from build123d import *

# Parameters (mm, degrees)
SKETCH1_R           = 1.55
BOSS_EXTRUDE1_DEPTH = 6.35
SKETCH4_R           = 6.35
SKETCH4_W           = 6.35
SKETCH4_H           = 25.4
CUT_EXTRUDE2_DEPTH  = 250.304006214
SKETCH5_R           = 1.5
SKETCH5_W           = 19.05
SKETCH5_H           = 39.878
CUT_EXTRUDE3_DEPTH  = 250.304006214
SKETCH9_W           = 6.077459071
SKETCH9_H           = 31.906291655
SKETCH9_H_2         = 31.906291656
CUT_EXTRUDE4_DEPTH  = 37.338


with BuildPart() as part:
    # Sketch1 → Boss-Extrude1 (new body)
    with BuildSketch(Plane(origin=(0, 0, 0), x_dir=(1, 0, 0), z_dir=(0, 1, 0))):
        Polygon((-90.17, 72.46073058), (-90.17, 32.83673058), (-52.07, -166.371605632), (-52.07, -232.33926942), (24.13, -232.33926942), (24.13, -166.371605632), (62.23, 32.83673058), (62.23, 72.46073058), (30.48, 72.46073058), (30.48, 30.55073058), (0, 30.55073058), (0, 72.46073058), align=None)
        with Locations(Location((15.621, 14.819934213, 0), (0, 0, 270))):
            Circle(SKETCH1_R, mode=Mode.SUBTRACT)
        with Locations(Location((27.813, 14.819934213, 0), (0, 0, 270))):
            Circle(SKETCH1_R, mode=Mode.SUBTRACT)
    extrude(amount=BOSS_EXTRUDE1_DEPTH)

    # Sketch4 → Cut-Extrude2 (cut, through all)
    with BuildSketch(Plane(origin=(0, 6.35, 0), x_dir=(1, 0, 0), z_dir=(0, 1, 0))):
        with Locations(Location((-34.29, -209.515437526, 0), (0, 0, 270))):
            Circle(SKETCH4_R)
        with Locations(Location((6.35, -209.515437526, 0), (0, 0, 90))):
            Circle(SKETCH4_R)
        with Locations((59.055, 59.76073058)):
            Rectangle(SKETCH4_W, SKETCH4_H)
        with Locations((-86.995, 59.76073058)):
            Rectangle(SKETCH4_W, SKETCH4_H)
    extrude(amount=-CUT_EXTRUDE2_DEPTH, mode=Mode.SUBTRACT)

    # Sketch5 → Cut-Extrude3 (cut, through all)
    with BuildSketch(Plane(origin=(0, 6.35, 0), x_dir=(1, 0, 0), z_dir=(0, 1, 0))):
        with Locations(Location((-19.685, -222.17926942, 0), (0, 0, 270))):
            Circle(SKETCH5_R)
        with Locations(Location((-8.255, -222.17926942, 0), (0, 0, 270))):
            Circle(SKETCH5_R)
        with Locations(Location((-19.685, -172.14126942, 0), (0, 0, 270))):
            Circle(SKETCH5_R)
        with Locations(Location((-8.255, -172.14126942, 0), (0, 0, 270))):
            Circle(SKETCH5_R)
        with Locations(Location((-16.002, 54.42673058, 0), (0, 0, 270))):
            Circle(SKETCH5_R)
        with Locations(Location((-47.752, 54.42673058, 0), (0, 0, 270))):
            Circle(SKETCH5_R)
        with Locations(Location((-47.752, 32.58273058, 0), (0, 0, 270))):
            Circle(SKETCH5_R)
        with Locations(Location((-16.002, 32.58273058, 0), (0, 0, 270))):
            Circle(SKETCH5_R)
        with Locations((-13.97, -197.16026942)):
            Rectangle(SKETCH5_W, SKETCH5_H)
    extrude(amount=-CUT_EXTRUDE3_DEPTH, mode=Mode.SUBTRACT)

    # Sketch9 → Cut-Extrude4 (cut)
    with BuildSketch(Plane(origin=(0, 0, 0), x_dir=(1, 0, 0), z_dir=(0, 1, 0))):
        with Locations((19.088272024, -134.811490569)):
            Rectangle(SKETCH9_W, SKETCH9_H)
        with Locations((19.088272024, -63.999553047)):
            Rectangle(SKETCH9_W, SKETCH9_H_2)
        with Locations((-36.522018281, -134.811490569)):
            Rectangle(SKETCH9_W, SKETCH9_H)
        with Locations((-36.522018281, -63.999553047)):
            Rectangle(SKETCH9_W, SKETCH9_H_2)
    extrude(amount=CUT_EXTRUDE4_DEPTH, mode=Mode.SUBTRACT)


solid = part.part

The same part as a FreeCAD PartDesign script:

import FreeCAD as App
import Part
import Sketcher
from FreeCAD import Vector
Q = App.Units.Quantity

doc = App.newDocument("Part")
body = doc.addObject("PartDesign::Body", "Body")

# Sketch on XZ plane
sketch1 = doc.addObject("Sketcher::SketchObject", "Sketch")
body.addObject(sketch1)
sketch1.AttachmentSupport = (doc.XZ_Plane, [""])
sketch1.MapMode = "FlatFace"
sketch1.addGeometry(Part.LineSegment(Vector(-90.2, -72.5, 0), Vector(-90.2, -32.8, 0)), False)
sketch1.addGeometry(Part.LineSegment(Vector(-90.2, -32.8, 0), Vector(-52.1, 166.4, 0)), False)
sketch1.addGeometry(Part.LineSegment(Vector(-52.1, 166.4, 0), Vector(-52.1, 232.3, 0)), False)
sketch1.addGeometry(Part.LineSegment(Vector(-52.1, 232.3, 0), Vector(24.1, 232.3, 0)), False)
sketch1.addGeometry(Part.LineSegment(Vector(24.1, 232.3, 0), Vector(24.1, 166.4, 0)), False)
sketch1.addGeometry(Part.LineSegment(Vector(24.1, 166.4, 0), Vector(62.2, -32.8, 0)), False)
sketch1.addGeometry(Part.LineSegment(Vector(62.2, -32.8, 0), Vector(62.2, -72.5, 0)), False)
sketch1.addGeometry(Part.LineSegment(Vector(62.2, -72.5, 0), Vector(30.5, -72.5, 0)), False)
sketch1.addGeometry(Part.LineSegment(Vector(30.5, -72.5, 0), Vector(30.5, -30.6, 0)), False)
sketch1.addGeometry(Part.LineSegment(Vector(30.5, -30.6, 0), Vector(0, -30.6, 0)), False)
sketch1.addGeometry(Part.LineSegment(Vector(0, -30.6, 0), Vector(0, -72.5, 0)), False)
sketch1.addGeometry(Part.LineSegment(Vector(0, -72.5, 0), Vector(-90.2, -72.5, 0)), False)
sketch1.addGeometry(Part.Circle(Vector(15.6, -14.8, 0), Vector(0, 0, 1), 1.6), False)
sketch1.addGeometry(Part.Circle(Vector(27.8, -14.8, 0), Vector(0, 0, 1), 1.6), False)
sketch1.addConstraint(Sketcher.Constraint("Coincident", 0, 2, 1, 1))
sketch1.addConstraint(Sketcher.Constraint("Coincident", 1, 2, 2, 1))
sketch1.addConstraint(Sketcher.Constraint("Coincident", 2, 2, 3, 1))
sketch1.addConstraint(Sketcher.Constraint("Coincident", 3, 2, 4, 1))
sketch1.addConstraint(Sketcher.Constraint("Coincident", 4, 2, 5, 1))
sketch1.addConstraint(Sketcher.Constraint("Coincident", 5, 2, 6, 1))
sketch1.addConstraint(Sketcher.Constraint("Coincident", 6, 2, 7, 1))
sketch1.addConstraint(Sketcher.Constraint("Coincident", 7, 2, 8, 1))
sketch1.addConstraint(Sketcher.Constraint("Coincident", 8, 2, 9, 1))
sketch1.addConstraint(Sketcher.Constraint("Coincident", 9, 2, 10, 1))
sketch1.addConstraint(Sketcher.Constraint("Coincident", 10, 2, 11, 1))
sketch1.addConstraint(Sketcher.Constraint("Coincident", 11, 2, 0, 1))
sketch1.addConstraint(Sketcher.Constraint("Vertical", 0))
sketch1.addConstraint(Sketcher.Constraint("Vertical", 2))
sketch1.addConstraint(Sketcher.Constraint("Horizontal", 3))
sketch1.addConstraint(Sketcher.Constraint("Vertical", 4))
sketch1.addConstraint(Sketcher.Constraint("Vertical", 6))
sketch1.addConstraint(Sketcher.Constraint("Horizontal", 7))
sketch1.addConstraint(Sketcher.Constraint("Vertical", 8))
sketch1.addConstraint(Sketcher.Constraint("Horizontal", 9))
sketch1.addConstraint(Sketcher.Constraint("Vertical", 10))
sketch1.addConstraint(Sketcher.Constraint("Horizontal", 11))
sketch1.addConstraint(Sketcher.Constraint("Equal", 12, 13))
sketch1.addConstraint(Sketcher.Constraint("PointOnObject", 9, 2, -2))
sketch1.addConstraint(Sketcher.Constraint("Horizontal", 12, 3, 13, 3))
sketch1.addConstraint(Sketcher.Constraint("Horizontal", 1, 2, 4, 2))
sketch1.addConstraint(Sketcher.Constraint("Horizontal", 0, 2, 5, 2))
sketch1.addConstraint(Sketcher.Constraint("Horizontal", 7, 2, 10, 2))
sketch1.addConstraint(Sketcher.Constraint("Equal", 1, 5))
sketch1.addConstraint(Sketcher.Constraint("DistanceX", 3, 1, 3, 2, Q("3 in")))
sketch1.addConstraint(Sketcher.Constraint("DistanceX", 9, 2, 9, 1, Q("1.2 in")))
sketch1.addConstraint(Sketcher.Constraint("DistanceX", 0, 2, 5, 2, Q("6 in")))
sketch1.addConstraint(Sketcher.Constraint("DistanceX", 7, 2, 7, 1, Q("1.25 in")))
sketch1.addConstraint(Sketcher.Constraint("DistanceY", 0, 1, 0, 2, Q("1.56 in")))
sketch1.addConstraint(Sketcher.Constraint("DistanceY", 8, 1, 8, 2, Q("1.65 in")))
sketch1.addConstraint(Sketcher.Constraint("Diameter", 12, 3.1))
sketch1.addConstraint(Sketcher.Constraint("DistanceX", 12, 3, 13, 3, Q("0.48 in")))
sketch1.addConstraint(Sketcher.Constraint("DistanceY", 0, 2, 2, 2, Q("10.44 in")))
sketch1.addConstraint(Sketcher.Constraint("DistanceX", -1, 1, 12, 3, Q("0.615 in")))
sketch1.addConstraint(Sketcher.Constraint("Distance", 1, 202.81906))
sketch1.addConstraint(Sketcher.Constraint("DistanceY", 0, 2, -1, 1, 32.836731))
sketch1.addConstraint(Sketcher.Constraint("DistanceY", 12, 3, 1, 2, 181.19154))
pad1 = doc.addObject("PartDesign::Pad", "Pad")
body.addObject(pad1)
pad1.Profile = sketch1
pad1.Length = Q("0.25 in")
pad1.Reversed = True

# Sketch on XZ plane
sketch2 = doc.addObject("Sketcher::SketchObject", "Sketch001")
body.addObject(sketch2)
sketch2.AttachmentSupport = (doc.XZ_Plane, [""])
sketch2.MapMode = "FlatFace"
sketch2.AttachmentOffset = App.Placement(Vector(0, 0, -0.25 * 25.4), App.Rotation())
sketch2.addGeometry(Part.Circle(Vector(-34, 210, 0), Vector(0, 0, 1), 6), False)
sketch2.addGeometry(Part.Circle(Vector(6, 210, 0), Vector(0, 0, 1), 6), False)
sketch2.addGeometry(Part.LineSegment(Vector(56, -72, 0), Vector(56, -47, 0)), False)
sketch2.addGeometry(Part.LineSegment(Vector(56, -47, 0), Vector(62, -47, 0)), False)
sketch2.addGeometry(Part.LineSegment(Vector(62, -47, 0), Vector(62, -72, 0)), False)
sketch2.addGeometry(Part.LineSegment(Vector(62, -72, 0), Vector(56, -72, 0)), False)
sketch2.addGeometry(Part.LineSegment(Vector(-90, -72, 0), Vector(-90, -47, 0)), False)
sketch2.addGeometry(Part.LineSegment(Vector(-90, -47, 0), Vector(-84, -47, 0)), False)
sketch2.addGeometry(Part.LineSegment(Vector(-84, -47, 0), Vector(-84, -72, 0)), False)
sketch2.addGeometry(Part.LineSegment(Vector(-84, -72, 0), Vector(-90, -72, 0)), False)
sketch2.addConstraint(Sketcher.Constraint("Coincident", 2, 2, 3, 1))
sketch2.addConstraint(Sketcher.Constraint("Coincident", 3, 2, 4, 1))
sketch2.addConstraint(Sketcher.Constraint("Coincident", 4, 2, 5, 1))
sketch2.addConstraint(Sketcher.Constraint("Coincident", 5, 2, 2, 1))
sketch2.addConstraint(Sketcher.Constraint("Coincident", 6, 2, 7, 1))
sketch2.addConstraint(Sketcher.Constraint("Coincident", 7, 2, 8, 1))
sketch2.addConstraint(Sketcher.Constraint("Coincident", 8, 2, 9, 1))
sketch2.addConstraint(Sketcher.Constraint("Coincident", 9, 2, 6, 1))
sketch2.addConstraint(Sketcher.Constraint("Vertical", 2))
sketch2.addConstraint(Sketcher.Constraint("Horizontal", 3))
sketch2.addConstraint(Sketcher.Constraint("Vertical", 4))
sketch2.addConstraint(Sketcher.Constraint("Horizontal", 5))
sketch2.addConstraint(Sketcher.Constraint("Vertical", 6))
sketch2.addConstraint(Sketcher.Constraint("Horizontal", 7))
sketch2.addConstraint(Sketcher.Constraint("Vertical", 8))
sketch2.addConstraint(Sketcher.Constraint("Horizontal", 9))
sketch2.addConstraint(Sketcher.Constraint("Equal", 0, 1))
sketch2.addConstraint(Sketcher.Constraint("Horizontal", 0, 3, 1, 3))
sketch2.addConstraint(Sketcher.Constraint("Horizontal", 3, 2, 6, 2))
sketch2.addConstraint(Sketcher.Constraint("Horizontal", 5, 2, 8, 2))
sketch2.addConstraint(Sketcher.Constraint("Equal", 5, 7))
sketch2.addConstraint(Sketcher.Constraint("Diameter", 0, Q("0.5 in")))
sketch2.addConstraint(Sketcher.Constraint("DistanceY", 2, 1, 2, 2, Q("1 in")))
sketch2.addConstraint(Sketcher.Constraint("DistanceX", 6, 2, 3, 2, Q("6 in")))
sketch2.addConstraint(Sketcher.Constraint("DistanceX", 3, 1, 3, 2, Q("0.25 in")))
sketch2.addConstraint(Sketcher.Constraint("DistanceX", -1, 1, 2, 2, Q("2.2 in")))
sketch2.addConstraint(Sketcher.Constraint("DistanceX", 0, 3, 1, 3, Q("1.6 in")))
sketch2.addConstraint(Sketcher.Constraint("DistanceX", 1, 3, 3, 2, Q("2.2 in")))
sketch2.addConstraint(Sketcher.Constraint("DistanceY", 2, 2, -1, 1, 47.060731))
sketch2.addConstraint(Sketcher.Constraint("DistanceY", 2, 2, 1, 3, 256.576168))
pocket1 = doc.addObject("PartDesign::Pocket", "Pocket")
body.addObject(pocket1)
pocket1.Profile = sketch2
pocket1.Type = "ThroughAll"
pocket1.Reversed = True

# Sketch on XZ plane
sketch3 = doc.addObject("Sketcher::SketchObject", "Sketch002")
body.addObject(sketch3)
sketch3.AttachmentSupport = (doc.XZ_Plane, [""])
sketch3.MapMode = "FlatFace"
sketch3.AttachmentOffset = App.Placement(Vector(0, 0, -0.25 * 25.4), App.Rotation())
sketch3.addGeometry(Part.Circle(Vector(-19.7, 222.2, 0), Vector(0, 0, 1), 1.5), False)
sketch3.addGeometry(Part.Circle(Vector(-8.3, 222.2, 0), Vector(0, 0, 1), 1.5), False)
sketch3.addGeometry(Part.Circle(Vector(-19.7, 172.1, 0), Vector(0, 0, 1), 1.5), False)
sketch3.addGeometry(Part.Circle(Vector(-8.3, 172.1, 0), Vector(0, 0, 1), 1.5), False)
sketch3.addGeometry(Part.Circle(Vector(-16, -54.4, 0), Vector(0, 0, 1), 1.5), False)
sketch3.addGeometry(Part.Circle(Vector(-47.8, -54.4, 0), Vector(0, 0, 1), 1.5), False)
sketch3.addGeometry(Part.Circle(Vector(-47.8, -32.6, 0), Vector(0, 0, 1), 1.5), False)
sketch3.addGeometry(Part.Circle(Vector(-16, -32.6, 0), Vector(0, 0, 1), 1.5), False)
sketch3.addGeometry(Part.LineSegment(Vector(-23.5, 177.2, 0), Vector(-23.5, 217.1, 0)), False)
sketch3.addGeometry(Part.LineSegment(Vector(-23.5, 217.1, 0), Vector(-4.4, 217.1, 0)), False)
sketch3.addGeometry(Part.LineSegment(Vector(-4.4, 217.1, 0), Vector(-4.4, 177.2, 0)), False)
sketch3.addGeometry(Part.LineSegment(Vector(-4.4, 177.2, 0), Vector(-23.5, 177.2, 0)), False)
sketch3.addConstraint(Sketcher.Constraint("Coincident", 8, 2, 9, 1))
sketch3.addConstraint(Sketcher.Constraint("Coincident", 9, 2, 10, 1))
sketch3.addConstraint(Sketcher.Constraint("Coincident", 10, 2, 11, 1))
sketch3.addConstraint(Sketcher.Constraint("Coincident", 11, 2, 8, 1))
sketch3.addConstraint(Sketcher.Constraint("Vertical", 8))
sketch3.addConstraint(Sketcher.Constraint("Horizontal", 9))
sketch3.addConstraint(Sketcher.Constraint("Vertical", 10))
sketch3.addConstraint(Sketcher.Constraint("Horizontal", 11))
sketch3.addConstraint(Sketcher.Constraint("Equal", 0, 1))
sketch3.addConstraint(Sketcher.Constraint("Equal", 1, 2))
sketch3.addConstraint(Sketcher.Constraint("Equal", 2, 3))
sketch3.addConstraint(Sketcher.Constraint("Equal", 3, 4))
sketch3.addConstraint(Sketcher.Constraint("Equal", 4, 5))
sketch3.addConstraint(Sketcher.Constraint("Equal", 5, 6))
sketch3.addConstraint(Sketcher.Constraint("Equal", 6, 7))
sketch3.addConstraint(Sketcher.Constraint("Horizontal", 0, 3, 1, 3))
sketch3.addConstraint(Sketcher.Constraint("Horizontal", 2, 3, 3, 3))
sketch3.addConstraint(Sketcher.Constraint("Horizontal", 4, 3, 5, 3))
sketch3.addConstraint(Sketcher.Constraint("Horizontal", 6, 3, 7, 3))
sketch3.addConstraint(Sketcher.Constraint("Vertical", 0, 3, 2, 3))
sketch3.addConstraint(Sketcher.Constraint("Vertical", 1, 3, 3, 3))
sketch3.addConstraint(Sketcher.Constraint("Vertical", 5, 3, 6, 3))
sketch3.addConstraint(Sketcher.Constraint("Vertical", 4, 3, 7, 3))
sketch3.addConstraint(Sketcher.Constraint("DistanceX", 9, 1, 9, 2, Q("0.75 in")))
sketch3.addConstraint(Sketcher.Constraint("DistanceY", 8, 1, 8, 2, Q("1.57 in")))
sketch3.addConstraint(Sketcher.Constraint("DistanceY", 8, 2, 0, 3, Q("0.2 in")))
sketch3.addConstraint(Sketcher.Constraint("DistanceX", 8, 2, 1, 3, Q("0.6 in")))
sketch3.addConstraint(Sketcher.Constraint("DistanceX", 0, 3, 9, 2, Q("0.6 in")))
sketch3.addConstraint(Sketcher.Constraint("DistanceY", 3, 3, 10, 2, Q("0.2 in")))
sketch3.addConstraint(Sketcher.Constraint("Diameter", 0, 3.0))
sketch3.addConstraint(Sketcher.Constraint("DistanceX", 4, 3, -1, 1, Q("0.63 in")))
sketch3.addConstraint(Sketcher.Constraint("DistanceX", 5, 3, -1, 1, Q("1.88 in")))
sketch3.addConstraint(Sketcher.Constraint("DistanceY", 4, 3, 2, 3, Q("8.92 in")))
sketch3.addConstraint(Sketcher.Constraint("DistanceY", 5, 3, 6, 3, Q("0.86 in")))
sketch3.addConstraint(Sketcher.Constraint("DistanceX", 0, 3, -1, 1, Q("0.775 in")))
sketch3.addConstraint(Sketcher.Constraint("DistanceY", -1, 1, 0, 3, 222.179269))
pocket2 = doc.addObject("PartDesign::Pocket", "Pocket001")
body.addObject(pocket2)
pocket2.Profile = sketch3
pocket2.Type = "ThroughAll"
pocket2.Reversed = True

# Sketch on XZ plane
sketch4 = doc.addObject("Sketcher::SketchObject", "Sketch003")
body.addObject(sketch4)
sketch4.AttachmentSupport = (doc.XZ_Plane, [""])
sketch4.MapMode = "FlatFace"
sketch4.addGeometry(Part.LineSegment(Vector(16, 119, 0), Vector(16, 151, 0)), False)
sketch4.addGeometry(Part.LineSegment(Vector(16, 151, 0), Vector(22, 151, 0)), False)
sketch4.addGeometry(Part.LineSegment(Vector(22, 151, 0), Vector(22, 119, 0)), False)
sketch4.addGeometry(Part.LineSegment(Vector(22, 119, 0), Vector(16, 119, 0)), False)
sketch4.addGeometry(Part.LineSegment(Vector(16, 48, 0), Vector(16, 80, 0)), False)
sketch4.addGeometry(Part.LineSegment(Vector(16, 80, 0), Vector(22, 80, 0)), False)
sketch4.addGeometry(Part.LineSegment(Vector(22, 80, 0), Vector(22, 48, 0)), False)
sketch4.addGeometry(Part.LineSegment(Vector(22, 48, 0), Vector(16, 48, 0)), False)
sketch4.addGeometry(Part.LineSegment(Vector(-40, 119, 0), Vector(-40, 151, 0)), False)
sketch4.addGeometry(Part.LineSegment(Vector(-40, 151, 0), Vector(-33, 151, 0)), False)
sketch4.addGeometry(Part.LineSegment(Vector(-33, 151, 0), Vector(-33, 119, 0)), False)
sketch4.addGeometry(Part.LineSegment(Vector(-33, 119, 0), Vector(-40, 119, 0)), False)
sketch4.addGeometry(Part.LineSegment(Vector(-40, 48, 0), Vector(-40, 80, 0)), False)
sketch4.addGeometry(Part.LineSegment(Vector(-40, 80, 0), Vector(-33, 80, 0)), False)
sketch4.addGeometry(Part.LineSegment(Vector(-33, 80, 0), Vector(-33, 48, 0)), False)
sketch4.addGeometry(Part.LineSegment(Vector(-33, 48, 0), Vector(-40, 48, 0)), False)
sketch4.addConstraint(Sketcher.Constraint("Coincident", 0, 2, 1, 1))
sketch4.addConstraint(Sketcher.Constraint("Coincident", 1, 2, 2, 1))
sketch4.addConstraint(Sketcher.Constraint("Coincident", 2, 2, 3, 1))
sketch4.addConstraint(Sketcher.Constraint("Coincident", 3, 2, 0, 1))
sketch4.addConstraint(Sketcher.Constraint("Coincident", 4, 2, 5, 1))
sketch4.addConstraint(Sketcher.Constraint("Coincident", 5, 2, 6, 1))
sketch4.addConstraint(Sketcher.Constraint("Coincident", 6, 2, 7, 1))
sketch4.addConstraint(Sketcher.Constraint("Coincident", 7, 2, 4, 1))
sketch4.addConstraint(Sketcher.Constraint("Coincident", 8, 2, 9, 1))
sketch4.addConstraint(Sketcher.Constraint("Coincident", 9, 2, 10, 1))
sketch4.addConstraint(Sketcher.Constraint("Coincident", 10, 2, 11, 1))
sketch4.addConstraint(Sketcher.Constraint("Coincident", 11, 2, 8, 1))
sketch4.addConstraint(Sketcher.Constraint("Coincident", 12, 2, 13, 1))
sketch4.addConstraint(Sketcher.Constraint("Coincident", 13, 2, 14, 1))
sketch4.addConstraint(Sketcher.Constraint("Coincident", 14, 2, 15, 1))
sketch4.addConstraint(Sketcher.Constraint("Coincident", 15, 2, 12, 1))
sketch4.addConstraint(Sketcher.Constraint("Vertical", 0))
sketch4.addConstraint(Sketcher.Constraint("Horizontal", 1))
sketch4.addConstraint(Sketcher.Constraint("Vertical", 2))
sketch4.addConstraint(Sketcher.Constraint("Horizontal", 3))
sketch4.addConstraint(Sketcher.Constraint("Vertical", 4))
sketch4.addConstraint(Sketcher.Constraint("Horizontal", 5))
sketch4.addConstraint(Sketcher.Constraint("Vertical", 6))
sketch4.addConstraint(Sketcher.Constraint("Horizontal", 7))
sketch4.addConstraint(Sketcher.Constraint("Vertical", 8))
sketch4.addConstraint(Sketcher.Constraint("Horizontal", 9))
sketch4.addConstraint(Sketcher.Constraint("Vertical", 10))
sketch4.addConstraint(Sketcher.Constraint("Horizontal", 11))
sketch4.addConstraint(Sketcher.Constraint("Vertical", 12))
sketch4.addConstraint(Sketcher.Constraint("Horizontal", 13))
sketch4.addConstraint(Sketcher.Constraint("Vertical", 14))
sketch4.addConstraint(Sketcher.Constraint("Horizontal", 15))
sketch4.addConstraint(Sketcher.Constraint("Horizontal", 1, 2, 8, 2))
sketch4.addConstraint(Sketcher.Constraint("Horizontal", 3, 2, 10, 2))
sketch4.addConstraint(Sketcher.Constraint("Horizontal", 5, 2, 12, 2))
sketch4.addConstraint(Sketcher.Constraint("Horizontal", 7, 2, 14, 2))
sketch4.addConstraint(Sketcher.Constraint("Vertical", 3, 2, 4, 2))
sketch4.addConstraint(Sketcher.Constraint("Vertical", 2, 2, 5, 2))
sketch4.addConstraint(Sketcher.Constraint("Vertical", 11, 2, 12, 2))
sketch4.addConstraint(Sketcher.Constraint("Vertical", 10, 2, 13, 2))
sketch4.addConstraint(Sketcher.Constraint("Equal", 7, 9))
sketch4.addConstraint(Sketcher.Constraint("Equal", 2, 4))
sketch4.addConstraint(Sketcher.Constraint("DistanceX", 1, 1, 1, 2, 6.077459))
sketch4.addConstraint(Sketcher.Constraint("DistanceY", 0, 1, 0, 2, 31.906292))
sketch4.addConstraint(Sketcher.Constraint("DistanceX", -1, 1, 1, 2, 22.127002))
sketch4.addConstraint(Sketcher.Constraint("DistanceY", -1, 1, 4, 2, 79.952699))
sketch4.addConstraint(Sketcher.Constraint("DistanceX", 9, 2, -1, 1, 33.483289))
sketch4.addConstraint(Sketcher.Constraint("DistanceY", 6, 2, 1, 2, 102.718229))
pocket3 = doc.addObject("PartDesign::Pocket", "Pocket002")
body.addObject(pocket3)
pocket3.Profile = sketch4
pocket3.Length = Q("1.47 in")

doc.recompute()
